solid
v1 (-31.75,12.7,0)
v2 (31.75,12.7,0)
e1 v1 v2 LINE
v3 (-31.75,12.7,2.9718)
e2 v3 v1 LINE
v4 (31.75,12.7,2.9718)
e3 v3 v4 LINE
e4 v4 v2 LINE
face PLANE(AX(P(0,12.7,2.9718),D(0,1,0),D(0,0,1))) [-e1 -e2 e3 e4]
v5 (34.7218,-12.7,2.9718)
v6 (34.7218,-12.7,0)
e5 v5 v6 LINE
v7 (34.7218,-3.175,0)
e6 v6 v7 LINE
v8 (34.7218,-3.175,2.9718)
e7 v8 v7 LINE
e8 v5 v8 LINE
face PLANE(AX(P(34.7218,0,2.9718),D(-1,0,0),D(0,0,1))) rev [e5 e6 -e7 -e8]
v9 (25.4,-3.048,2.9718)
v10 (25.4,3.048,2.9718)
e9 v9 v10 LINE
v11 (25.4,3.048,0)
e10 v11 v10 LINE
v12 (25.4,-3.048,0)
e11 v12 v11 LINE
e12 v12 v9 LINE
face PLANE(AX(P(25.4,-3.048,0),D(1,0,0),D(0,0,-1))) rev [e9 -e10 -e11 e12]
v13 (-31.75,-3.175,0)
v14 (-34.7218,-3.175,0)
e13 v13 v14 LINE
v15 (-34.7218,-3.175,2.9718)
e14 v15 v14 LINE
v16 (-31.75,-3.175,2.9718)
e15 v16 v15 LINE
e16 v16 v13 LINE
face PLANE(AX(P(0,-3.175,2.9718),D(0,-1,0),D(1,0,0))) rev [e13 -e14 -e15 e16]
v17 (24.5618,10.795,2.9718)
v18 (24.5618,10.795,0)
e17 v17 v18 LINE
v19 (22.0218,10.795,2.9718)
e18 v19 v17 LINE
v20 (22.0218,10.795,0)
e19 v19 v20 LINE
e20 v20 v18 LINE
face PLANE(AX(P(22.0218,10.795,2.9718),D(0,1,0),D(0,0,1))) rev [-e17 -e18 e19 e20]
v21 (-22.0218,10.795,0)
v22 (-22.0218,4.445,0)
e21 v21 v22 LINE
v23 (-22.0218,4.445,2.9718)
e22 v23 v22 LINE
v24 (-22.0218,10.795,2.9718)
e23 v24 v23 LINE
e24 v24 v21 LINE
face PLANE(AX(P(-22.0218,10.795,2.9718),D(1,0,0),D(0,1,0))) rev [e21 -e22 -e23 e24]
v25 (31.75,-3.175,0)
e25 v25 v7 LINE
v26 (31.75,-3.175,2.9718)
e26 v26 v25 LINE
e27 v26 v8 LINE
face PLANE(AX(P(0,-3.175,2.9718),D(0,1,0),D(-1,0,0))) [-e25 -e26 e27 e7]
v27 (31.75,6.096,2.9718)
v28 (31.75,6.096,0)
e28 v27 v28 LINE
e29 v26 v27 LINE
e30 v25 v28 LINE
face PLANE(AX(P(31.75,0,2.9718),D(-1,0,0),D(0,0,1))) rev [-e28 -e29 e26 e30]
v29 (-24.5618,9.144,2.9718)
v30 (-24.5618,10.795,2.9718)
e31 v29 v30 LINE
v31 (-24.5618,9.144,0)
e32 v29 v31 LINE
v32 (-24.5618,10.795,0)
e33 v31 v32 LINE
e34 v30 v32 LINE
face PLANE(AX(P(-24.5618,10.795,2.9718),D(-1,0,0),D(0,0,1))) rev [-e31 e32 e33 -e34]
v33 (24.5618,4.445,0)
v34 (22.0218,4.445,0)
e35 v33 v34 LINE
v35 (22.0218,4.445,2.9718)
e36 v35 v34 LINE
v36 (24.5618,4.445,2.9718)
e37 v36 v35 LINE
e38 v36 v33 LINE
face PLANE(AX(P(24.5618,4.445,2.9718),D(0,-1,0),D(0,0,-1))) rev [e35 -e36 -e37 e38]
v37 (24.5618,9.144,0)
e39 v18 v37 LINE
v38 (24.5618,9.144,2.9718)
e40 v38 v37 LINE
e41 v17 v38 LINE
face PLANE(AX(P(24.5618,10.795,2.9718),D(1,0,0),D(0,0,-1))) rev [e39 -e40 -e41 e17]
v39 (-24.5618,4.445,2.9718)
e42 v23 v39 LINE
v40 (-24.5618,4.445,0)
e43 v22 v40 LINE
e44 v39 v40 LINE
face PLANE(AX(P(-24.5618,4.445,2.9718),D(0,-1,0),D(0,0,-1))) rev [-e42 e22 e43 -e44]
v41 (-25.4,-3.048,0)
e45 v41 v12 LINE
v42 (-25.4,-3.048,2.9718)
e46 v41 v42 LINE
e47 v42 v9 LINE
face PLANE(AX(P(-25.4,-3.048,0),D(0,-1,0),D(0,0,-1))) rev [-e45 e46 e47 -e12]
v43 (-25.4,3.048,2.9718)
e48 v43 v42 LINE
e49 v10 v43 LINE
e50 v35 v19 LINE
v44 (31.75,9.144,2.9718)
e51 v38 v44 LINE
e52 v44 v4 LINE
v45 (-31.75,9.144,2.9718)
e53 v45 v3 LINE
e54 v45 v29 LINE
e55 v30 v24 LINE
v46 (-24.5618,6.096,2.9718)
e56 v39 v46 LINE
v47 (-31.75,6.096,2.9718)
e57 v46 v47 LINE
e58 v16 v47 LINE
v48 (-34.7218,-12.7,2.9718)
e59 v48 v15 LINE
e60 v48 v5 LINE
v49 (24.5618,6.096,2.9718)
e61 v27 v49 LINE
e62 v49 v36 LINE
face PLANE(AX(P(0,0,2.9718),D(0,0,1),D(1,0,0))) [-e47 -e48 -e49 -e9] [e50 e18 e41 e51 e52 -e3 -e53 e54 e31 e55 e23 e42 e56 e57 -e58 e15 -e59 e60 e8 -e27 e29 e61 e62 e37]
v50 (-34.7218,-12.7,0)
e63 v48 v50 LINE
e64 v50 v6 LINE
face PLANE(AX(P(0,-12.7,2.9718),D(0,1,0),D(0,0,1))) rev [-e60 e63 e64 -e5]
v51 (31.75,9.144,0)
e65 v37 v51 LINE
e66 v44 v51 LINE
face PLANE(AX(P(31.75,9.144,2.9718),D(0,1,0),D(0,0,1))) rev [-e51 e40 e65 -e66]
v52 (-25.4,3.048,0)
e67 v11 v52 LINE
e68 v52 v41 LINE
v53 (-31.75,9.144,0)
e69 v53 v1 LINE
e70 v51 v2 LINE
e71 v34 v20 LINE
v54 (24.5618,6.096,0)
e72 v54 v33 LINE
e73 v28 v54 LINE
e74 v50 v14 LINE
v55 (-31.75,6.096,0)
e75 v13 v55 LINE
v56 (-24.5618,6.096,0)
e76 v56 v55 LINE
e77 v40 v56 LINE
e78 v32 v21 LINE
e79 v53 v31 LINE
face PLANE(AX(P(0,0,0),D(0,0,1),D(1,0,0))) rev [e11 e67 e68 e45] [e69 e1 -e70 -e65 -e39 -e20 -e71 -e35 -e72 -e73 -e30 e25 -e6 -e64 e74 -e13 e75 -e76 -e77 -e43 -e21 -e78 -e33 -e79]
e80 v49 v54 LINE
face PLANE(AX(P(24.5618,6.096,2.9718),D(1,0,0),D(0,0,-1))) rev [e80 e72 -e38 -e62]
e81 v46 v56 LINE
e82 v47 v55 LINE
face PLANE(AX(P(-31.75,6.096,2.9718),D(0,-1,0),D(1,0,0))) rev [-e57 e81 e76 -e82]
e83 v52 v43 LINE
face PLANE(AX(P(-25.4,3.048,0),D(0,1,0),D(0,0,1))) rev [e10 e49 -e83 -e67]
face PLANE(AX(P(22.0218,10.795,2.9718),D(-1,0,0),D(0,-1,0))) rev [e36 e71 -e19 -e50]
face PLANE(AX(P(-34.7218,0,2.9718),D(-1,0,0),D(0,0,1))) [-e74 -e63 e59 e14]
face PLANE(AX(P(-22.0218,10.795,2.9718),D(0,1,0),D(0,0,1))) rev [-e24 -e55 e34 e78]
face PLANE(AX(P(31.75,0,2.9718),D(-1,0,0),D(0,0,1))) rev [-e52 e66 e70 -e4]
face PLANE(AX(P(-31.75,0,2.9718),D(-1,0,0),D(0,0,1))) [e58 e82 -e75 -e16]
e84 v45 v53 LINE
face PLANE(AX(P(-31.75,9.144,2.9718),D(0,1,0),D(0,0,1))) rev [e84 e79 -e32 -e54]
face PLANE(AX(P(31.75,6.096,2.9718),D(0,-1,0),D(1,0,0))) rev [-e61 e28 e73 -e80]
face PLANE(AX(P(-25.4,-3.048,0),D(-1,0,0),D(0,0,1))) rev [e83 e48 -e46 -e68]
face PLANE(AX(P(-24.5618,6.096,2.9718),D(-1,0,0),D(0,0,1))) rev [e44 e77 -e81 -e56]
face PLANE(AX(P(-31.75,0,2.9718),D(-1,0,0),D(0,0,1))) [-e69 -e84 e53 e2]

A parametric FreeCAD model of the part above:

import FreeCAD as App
import Part
import Sketcher
from FreeCAD import Vector
Q = App.Units.Quantity


def add_polygon(sketch, points):
    """Adds a closed chain of lines whose ends are joined by coincident constraints."""
    first, n = sketch.GeometryCount, len(points)
    for a, b in zip(points, points[1:] + points[:1]):
        sketch.addGeometry(Part.LineSegment(App.Vector(*a, 0), App.Vector(*b, 0)), False)
    for i in range(n):
        sketch.addConstraint(Sketcher.Constraint("Coincident", first + i, 2, first + (i + 1) % n, 1))

doc = App.newDocument("Part")
params = doc.addObject("Spreadsheet::Sheet", "Params")
for row, (alias, value) in enumerate([
    ("sketch1_width", "2.5 in"),
    ("sketch1_width2", "0.117 in"),
    ("sketch1_height", "0.625 in"),
    ("pad1_length", "0.117 in"),
    ("sketch2_width", "2 in"),
    ("sketch2_height", "0.24 in"),
    ("sketch3_width", "0.1 in"),
    ("sketch3_height", "0.25 in"),
    ("sketch3_height2", "0.12 in"),
    ("sketch3_width2", "0.283 in"),
], start=1):
    params.set(f"A{row}", alias)
    params.set(f"B{row}", "=" + value)
    params.setAlias(f"B{row}", alias)

body = doc.addObject("PartDesign::Body", "Body")

sketch1 = doc.addObject("Sketcher::SketchObject", "Sketch")
body.addObject(sketch1)
sketch1.AttachmentSupport = (doc.XY_Plane, [""])
sketch1.MapMode = "FlatFace"
add_polygon(sketch1, [(-31.75, 12.7), (-31.75, -3.175), (-34.7218, -3.175), (-34.7218, -12.7), (34.7218, -12.7), (34.7218, -3.175), (31.75, -3.175), (31.75, 12.7)])
sketch1.addConstraint([
    Sketcher.Constraint("Vertical", 0),
    Sketcher.Constraint("Horizontal", 1),
    Sketcher.Constraint("Vertical", 2),
    Sketcher.Constraint("Horizontal", 3),
    Sketcher.Constraint("Vertical", 4),
    Sketcher.Constraint("Horizontal", 5),
    Sketcher.Constraint("Vertical", 6),
    Sketcher.Constraint("Horizontal", 7),
    Sketcher.Constraint("Symmetric", 1, 2, 4, 2, -2),
    Sketcher.Constraint("Equal", 1, 5),
    Sketcher.Constraint("DistanceX", 7, 2, 7, 1, Q("2.5 in")),
    Sketcher.Constraint("DistanceY", 3, 2, 6, 2, Q("1 in")),
    Sketcher.Constraint("DistanceY", 2, 2, -1, 1, Q("0.5 in")),
    Sketcher.Constraint("DistanceX", 1, 2, 1, 1, Q("0.117 in")),
    Sketcher.Constraint("DistanceY", 0, 2, 0, 1, Q("0.625 in")),
])
sketch1.setExpression("Constraints[18]", "Params.sketch1_width")
sketch1.setExpression("Constraints[21]", "Params.sketch1_width2")
sketch1.setExpression("Constraints[22]", "Params.sketch1_height")
pad1 = doc.addObject("PartDesign::Pad", "Pad")
body.addObject(pad1)
pad1.Profile = sketch1
pad1.setExpression("Length", "Params.pad1_length")

sketch2 = doc.addObject("Sketcher::SketchObject", "Sketch001")
body.addObject(sketch2)
sketch2.AttachmentSupport = (doc.XY_Plane, [""])
sketch2.MapMode = "FlatFace"
sketch2.AttachmentOffset = App.Placement(Vector(0, 0, 0.117 * 25.4), App.Rotation())
add_polygon(sketch2, [(-25.4, 3.048), (-25.4, -3.048), (25.4, -3.048), (25.4, 3.048)])
sketch2.addConstraint([
    Sketcher.Constraint("Vertical", 0),
    Sketcher.Constraint("Horizontal", 1),
    Sketcher.Constraint("Vertical", 2),
    Sketcher.Constraint("Horizontal", 3),
    Sketcher.Constraint("Symmetric", 0, 2, 2, 2, -1, 1),
    Sketcher.Constraint("DistanceX", 1, 1, 1, 2, Q("2 in")),
    Sketcher.Constraint("DistanceY", 0, 2, 0, 1, Q("0.24 in")),
])
sketch2.setExpression("Constraints[9]", "Params.sketch2_width")
sketch2.setExpression("Constraints[10]", "Params.sketch2_height")
pocket1 = doc.addObject("PartDesign::Pocket", "Pocket")
body.addObject(pocket1)
pocket1.Profile = sketch2
pocket1.Type = "ThroughAll"

sketch3 = doc.addObject("Sketcher::SketchObject", "Sketch002")
body.addObject(sketch3)
sketch3.AttachmentSupport = (doc.XY_Plane, [""])
sketch3.MapMode = "FlatFace"
add_polygon(sketch3, [(-22.0218, 10.795), (-22.0218, 4.445), (-24.5618, 4.445), (-24.5618, 6.096), (-31.75, 6.096), (-31.75, 9.144), (-24.5618, 9.144), (-24.5618, 10.795)])
add_polygon(sketch3, [(31.75, 9.144), (31.75, 6.096), (24.5618, 6.096), (24.5618, 4.445), (22.0218, 4.445), (22.0218, 10.795), (24.5618, 10.795), (24.5618, 9.144)])
sketch3.addConstraint([
    Sketcher.Constraint("Vertical", 0),
    Sketcher.Constraint("Horizontal", 1),
    Sketcher.Constraint("Vertical", 2),
    Sketcher.Constraint("Horizontal", 3),
    Sketcher.Constraint("Vertical", 4),
    Sketcher.Constraint("Horizontal", 5),
    Sketcher.Constraint("Vertical", 6),
    Sketcher.Constraint("Horizontal", 7),
    Sketcher.Constraint("Vertical", 8),
    Sketcher.Constraint("Horizontal", 9),
    Sketcher.Constraint("Vertical", 10),
    Sketcher.Constraint("Horizontal", 11),
    Sketcher.Constraint("Vertical", 12),
    Sketcher.Constraint("Horizontal", 13),
    Sketcher.Constraint("Vertical", 14),
    Sketcher.Constraint("Horizontal", 15),
    Sketcher.Constraint("Symmetric", 3, 2, 8, 2, -2),
    Sketcher.Constraint("Symmetric", 1, 2, 10, 2, -2),
    Sketcher.Constraint("Symmetric", 7, 2, 12, 2, -2),
    Sketcher.Constraint("Symmetric", 5, 2, 14, 2, -2),
    Sketcher.Constraint("Vertical", 2, 2, 5, 2),
    Sketcher.Constraint("Equal", 2, 6),
    Sketcher.Constraint("DistanceX", 1, 2, 1, 1, Q("0.1 in")),
    Sketcher.Constraint("DistanceY", 0, 2, 0, 1, Q("0.25 in")),
    Sketcher.Constraint("DistanceY", 4, 1, 4, 2, Q("0.12 in")),
    Sketcher.Constraint("DistanceX", 3, 2, 3, 1, Q("0.283 in")),
    Sketcher.Constraint("DistanceY", -1, 1, 2, 2, Q("0.24 in")),
    Sketcher.Constraint("DistanceX", 3, 2, -1, 1, Q("1.25 in")),
])
sketch3.setExpression("Constraints[38]", "Params.sketch3_width")
sketch3.setExpression("Constraints[39]", "Params.sketch3_height")
sketch3.setExpression("Constraints[40]", "Params.sketch3_height2")
sketch3.setExpression("Constraints[41]", "Params.sketch3_width2")
pocket2 = doc.addObject("PartDesign::Pocket", "Pocket001")
body.addObject(pocket2)
pocket2.Profile = sketch3
pocket2.Type = "ThroughAll"
pocket2.Reversed = True

doc.recompute()
